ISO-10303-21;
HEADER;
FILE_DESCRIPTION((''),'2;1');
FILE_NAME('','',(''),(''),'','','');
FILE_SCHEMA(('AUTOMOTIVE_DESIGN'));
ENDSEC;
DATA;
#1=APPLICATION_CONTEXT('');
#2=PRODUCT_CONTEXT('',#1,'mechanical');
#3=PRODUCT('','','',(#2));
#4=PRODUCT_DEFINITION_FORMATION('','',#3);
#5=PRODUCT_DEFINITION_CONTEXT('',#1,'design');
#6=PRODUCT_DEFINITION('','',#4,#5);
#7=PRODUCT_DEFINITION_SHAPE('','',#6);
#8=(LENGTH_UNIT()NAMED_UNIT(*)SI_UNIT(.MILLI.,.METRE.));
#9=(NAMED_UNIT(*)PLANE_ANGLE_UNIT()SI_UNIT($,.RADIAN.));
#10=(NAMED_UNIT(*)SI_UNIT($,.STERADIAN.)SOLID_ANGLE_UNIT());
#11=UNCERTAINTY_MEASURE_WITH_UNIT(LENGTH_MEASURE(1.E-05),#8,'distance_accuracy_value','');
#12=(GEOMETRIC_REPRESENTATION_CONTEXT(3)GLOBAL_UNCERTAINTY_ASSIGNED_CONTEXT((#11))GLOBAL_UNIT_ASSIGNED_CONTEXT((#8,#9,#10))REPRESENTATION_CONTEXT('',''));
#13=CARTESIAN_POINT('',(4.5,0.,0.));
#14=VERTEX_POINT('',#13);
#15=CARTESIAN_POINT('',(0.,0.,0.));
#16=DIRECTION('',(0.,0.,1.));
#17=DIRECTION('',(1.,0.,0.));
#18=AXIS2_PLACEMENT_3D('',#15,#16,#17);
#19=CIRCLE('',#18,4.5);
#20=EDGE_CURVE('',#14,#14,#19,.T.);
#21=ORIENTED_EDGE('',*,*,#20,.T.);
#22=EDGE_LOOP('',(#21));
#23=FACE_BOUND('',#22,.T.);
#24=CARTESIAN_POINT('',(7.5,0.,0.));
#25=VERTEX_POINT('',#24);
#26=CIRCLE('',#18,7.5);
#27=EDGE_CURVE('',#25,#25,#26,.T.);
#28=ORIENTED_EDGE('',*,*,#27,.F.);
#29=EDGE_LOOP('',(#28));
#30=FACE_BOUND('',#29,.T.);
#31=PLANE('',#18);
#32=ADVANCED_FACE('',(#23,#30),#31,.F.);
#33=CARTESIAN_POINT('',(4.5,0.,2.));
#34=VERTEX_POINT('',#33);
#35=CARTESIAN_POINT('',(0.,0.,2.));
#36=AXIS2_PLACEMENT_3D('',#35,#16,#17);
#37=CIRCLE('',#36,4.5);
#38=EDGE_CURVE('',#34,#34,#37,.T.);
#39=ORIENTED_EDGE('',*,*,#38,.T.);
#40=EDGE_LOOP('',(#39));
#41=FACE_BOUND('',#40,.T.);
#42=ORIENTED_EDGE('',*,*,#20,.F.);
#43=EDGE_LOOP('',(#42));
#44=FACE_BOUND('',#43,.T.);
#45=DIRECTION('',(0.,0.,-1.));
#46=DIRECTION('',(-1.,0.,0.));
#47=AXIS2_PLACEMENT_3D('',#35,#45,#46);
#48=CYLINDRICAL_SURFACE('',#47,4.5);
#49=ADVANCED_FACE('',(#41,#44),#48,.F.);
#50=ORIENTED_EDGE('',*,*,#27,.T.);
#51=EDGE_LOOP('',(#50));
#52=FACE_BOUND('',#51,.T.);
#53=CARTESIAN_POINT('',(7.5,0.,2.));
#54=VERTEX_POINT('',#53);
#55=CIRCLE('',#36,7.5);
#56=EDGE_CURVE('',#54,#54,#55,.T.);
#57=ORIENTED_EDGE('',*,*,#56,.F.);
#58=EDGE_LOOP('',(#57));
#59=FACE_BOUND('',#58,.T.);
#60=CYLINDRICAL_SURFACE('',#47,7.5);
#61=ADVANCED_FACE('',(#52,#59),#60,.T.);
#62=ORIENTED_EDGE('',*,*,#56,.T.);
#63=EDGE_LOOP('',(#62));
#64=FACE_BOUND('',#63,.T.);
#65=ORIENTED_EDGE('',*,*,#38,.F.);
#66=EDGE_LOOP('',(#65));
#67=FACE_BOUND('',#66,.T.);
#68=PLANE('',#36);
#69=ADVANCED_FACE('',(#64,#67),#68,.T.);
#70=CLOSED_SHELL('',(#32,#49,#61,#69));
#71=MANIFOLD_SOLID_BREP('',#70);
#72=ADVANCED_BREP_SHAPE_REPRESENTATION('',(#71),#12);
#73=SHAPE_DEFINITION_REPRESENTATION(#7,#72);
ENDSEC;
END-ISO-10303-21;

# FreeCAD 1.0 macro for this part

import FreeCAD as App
import Part
import Sketcher
from FreeCAD import Vector
Q = App.Units.Quantity

doc = App.newDocument("Part")
body = doc.addObject("PartDesign::Body", "Body")

# Sketch on XY plane
sketch1 = body.newObject("Sketcher::SketchObject", "Sketch")
sketch1.AttachmentSupport = (doc.getObject("XY_Plane"), [""])
sketch1.MapMode = "FlatFace"
sketch1.addGeometry(Part.Circle(Vector(0, 0, 0), Vector(0, 0, 1), 7.5), False)
sketch1.addGeometry(Part.Circle(Vector(0, 0, 0), Vector(0, 0, 1), 4.5), False)
sketch1.addConstraint(Sketcher.Constraint("Coincident", 0, 3, -1, 1))
sketch1.addConstraint(Sketcher.Constraint("Coincident", 1, 3, -1, 1))
sketch1.addConstraint(Sketcher.Constraint("Diameter", 0, Q("15 mm")))
sketch1.addConstraint(Sketcher.Constraint("Diameter", 1, Q("9 mm")))
pad1 = body.newObject("PartDesign::Pad", "Pad")
pad1.Profile = sketch1
pad1.Length = 2

doc.recompute()
